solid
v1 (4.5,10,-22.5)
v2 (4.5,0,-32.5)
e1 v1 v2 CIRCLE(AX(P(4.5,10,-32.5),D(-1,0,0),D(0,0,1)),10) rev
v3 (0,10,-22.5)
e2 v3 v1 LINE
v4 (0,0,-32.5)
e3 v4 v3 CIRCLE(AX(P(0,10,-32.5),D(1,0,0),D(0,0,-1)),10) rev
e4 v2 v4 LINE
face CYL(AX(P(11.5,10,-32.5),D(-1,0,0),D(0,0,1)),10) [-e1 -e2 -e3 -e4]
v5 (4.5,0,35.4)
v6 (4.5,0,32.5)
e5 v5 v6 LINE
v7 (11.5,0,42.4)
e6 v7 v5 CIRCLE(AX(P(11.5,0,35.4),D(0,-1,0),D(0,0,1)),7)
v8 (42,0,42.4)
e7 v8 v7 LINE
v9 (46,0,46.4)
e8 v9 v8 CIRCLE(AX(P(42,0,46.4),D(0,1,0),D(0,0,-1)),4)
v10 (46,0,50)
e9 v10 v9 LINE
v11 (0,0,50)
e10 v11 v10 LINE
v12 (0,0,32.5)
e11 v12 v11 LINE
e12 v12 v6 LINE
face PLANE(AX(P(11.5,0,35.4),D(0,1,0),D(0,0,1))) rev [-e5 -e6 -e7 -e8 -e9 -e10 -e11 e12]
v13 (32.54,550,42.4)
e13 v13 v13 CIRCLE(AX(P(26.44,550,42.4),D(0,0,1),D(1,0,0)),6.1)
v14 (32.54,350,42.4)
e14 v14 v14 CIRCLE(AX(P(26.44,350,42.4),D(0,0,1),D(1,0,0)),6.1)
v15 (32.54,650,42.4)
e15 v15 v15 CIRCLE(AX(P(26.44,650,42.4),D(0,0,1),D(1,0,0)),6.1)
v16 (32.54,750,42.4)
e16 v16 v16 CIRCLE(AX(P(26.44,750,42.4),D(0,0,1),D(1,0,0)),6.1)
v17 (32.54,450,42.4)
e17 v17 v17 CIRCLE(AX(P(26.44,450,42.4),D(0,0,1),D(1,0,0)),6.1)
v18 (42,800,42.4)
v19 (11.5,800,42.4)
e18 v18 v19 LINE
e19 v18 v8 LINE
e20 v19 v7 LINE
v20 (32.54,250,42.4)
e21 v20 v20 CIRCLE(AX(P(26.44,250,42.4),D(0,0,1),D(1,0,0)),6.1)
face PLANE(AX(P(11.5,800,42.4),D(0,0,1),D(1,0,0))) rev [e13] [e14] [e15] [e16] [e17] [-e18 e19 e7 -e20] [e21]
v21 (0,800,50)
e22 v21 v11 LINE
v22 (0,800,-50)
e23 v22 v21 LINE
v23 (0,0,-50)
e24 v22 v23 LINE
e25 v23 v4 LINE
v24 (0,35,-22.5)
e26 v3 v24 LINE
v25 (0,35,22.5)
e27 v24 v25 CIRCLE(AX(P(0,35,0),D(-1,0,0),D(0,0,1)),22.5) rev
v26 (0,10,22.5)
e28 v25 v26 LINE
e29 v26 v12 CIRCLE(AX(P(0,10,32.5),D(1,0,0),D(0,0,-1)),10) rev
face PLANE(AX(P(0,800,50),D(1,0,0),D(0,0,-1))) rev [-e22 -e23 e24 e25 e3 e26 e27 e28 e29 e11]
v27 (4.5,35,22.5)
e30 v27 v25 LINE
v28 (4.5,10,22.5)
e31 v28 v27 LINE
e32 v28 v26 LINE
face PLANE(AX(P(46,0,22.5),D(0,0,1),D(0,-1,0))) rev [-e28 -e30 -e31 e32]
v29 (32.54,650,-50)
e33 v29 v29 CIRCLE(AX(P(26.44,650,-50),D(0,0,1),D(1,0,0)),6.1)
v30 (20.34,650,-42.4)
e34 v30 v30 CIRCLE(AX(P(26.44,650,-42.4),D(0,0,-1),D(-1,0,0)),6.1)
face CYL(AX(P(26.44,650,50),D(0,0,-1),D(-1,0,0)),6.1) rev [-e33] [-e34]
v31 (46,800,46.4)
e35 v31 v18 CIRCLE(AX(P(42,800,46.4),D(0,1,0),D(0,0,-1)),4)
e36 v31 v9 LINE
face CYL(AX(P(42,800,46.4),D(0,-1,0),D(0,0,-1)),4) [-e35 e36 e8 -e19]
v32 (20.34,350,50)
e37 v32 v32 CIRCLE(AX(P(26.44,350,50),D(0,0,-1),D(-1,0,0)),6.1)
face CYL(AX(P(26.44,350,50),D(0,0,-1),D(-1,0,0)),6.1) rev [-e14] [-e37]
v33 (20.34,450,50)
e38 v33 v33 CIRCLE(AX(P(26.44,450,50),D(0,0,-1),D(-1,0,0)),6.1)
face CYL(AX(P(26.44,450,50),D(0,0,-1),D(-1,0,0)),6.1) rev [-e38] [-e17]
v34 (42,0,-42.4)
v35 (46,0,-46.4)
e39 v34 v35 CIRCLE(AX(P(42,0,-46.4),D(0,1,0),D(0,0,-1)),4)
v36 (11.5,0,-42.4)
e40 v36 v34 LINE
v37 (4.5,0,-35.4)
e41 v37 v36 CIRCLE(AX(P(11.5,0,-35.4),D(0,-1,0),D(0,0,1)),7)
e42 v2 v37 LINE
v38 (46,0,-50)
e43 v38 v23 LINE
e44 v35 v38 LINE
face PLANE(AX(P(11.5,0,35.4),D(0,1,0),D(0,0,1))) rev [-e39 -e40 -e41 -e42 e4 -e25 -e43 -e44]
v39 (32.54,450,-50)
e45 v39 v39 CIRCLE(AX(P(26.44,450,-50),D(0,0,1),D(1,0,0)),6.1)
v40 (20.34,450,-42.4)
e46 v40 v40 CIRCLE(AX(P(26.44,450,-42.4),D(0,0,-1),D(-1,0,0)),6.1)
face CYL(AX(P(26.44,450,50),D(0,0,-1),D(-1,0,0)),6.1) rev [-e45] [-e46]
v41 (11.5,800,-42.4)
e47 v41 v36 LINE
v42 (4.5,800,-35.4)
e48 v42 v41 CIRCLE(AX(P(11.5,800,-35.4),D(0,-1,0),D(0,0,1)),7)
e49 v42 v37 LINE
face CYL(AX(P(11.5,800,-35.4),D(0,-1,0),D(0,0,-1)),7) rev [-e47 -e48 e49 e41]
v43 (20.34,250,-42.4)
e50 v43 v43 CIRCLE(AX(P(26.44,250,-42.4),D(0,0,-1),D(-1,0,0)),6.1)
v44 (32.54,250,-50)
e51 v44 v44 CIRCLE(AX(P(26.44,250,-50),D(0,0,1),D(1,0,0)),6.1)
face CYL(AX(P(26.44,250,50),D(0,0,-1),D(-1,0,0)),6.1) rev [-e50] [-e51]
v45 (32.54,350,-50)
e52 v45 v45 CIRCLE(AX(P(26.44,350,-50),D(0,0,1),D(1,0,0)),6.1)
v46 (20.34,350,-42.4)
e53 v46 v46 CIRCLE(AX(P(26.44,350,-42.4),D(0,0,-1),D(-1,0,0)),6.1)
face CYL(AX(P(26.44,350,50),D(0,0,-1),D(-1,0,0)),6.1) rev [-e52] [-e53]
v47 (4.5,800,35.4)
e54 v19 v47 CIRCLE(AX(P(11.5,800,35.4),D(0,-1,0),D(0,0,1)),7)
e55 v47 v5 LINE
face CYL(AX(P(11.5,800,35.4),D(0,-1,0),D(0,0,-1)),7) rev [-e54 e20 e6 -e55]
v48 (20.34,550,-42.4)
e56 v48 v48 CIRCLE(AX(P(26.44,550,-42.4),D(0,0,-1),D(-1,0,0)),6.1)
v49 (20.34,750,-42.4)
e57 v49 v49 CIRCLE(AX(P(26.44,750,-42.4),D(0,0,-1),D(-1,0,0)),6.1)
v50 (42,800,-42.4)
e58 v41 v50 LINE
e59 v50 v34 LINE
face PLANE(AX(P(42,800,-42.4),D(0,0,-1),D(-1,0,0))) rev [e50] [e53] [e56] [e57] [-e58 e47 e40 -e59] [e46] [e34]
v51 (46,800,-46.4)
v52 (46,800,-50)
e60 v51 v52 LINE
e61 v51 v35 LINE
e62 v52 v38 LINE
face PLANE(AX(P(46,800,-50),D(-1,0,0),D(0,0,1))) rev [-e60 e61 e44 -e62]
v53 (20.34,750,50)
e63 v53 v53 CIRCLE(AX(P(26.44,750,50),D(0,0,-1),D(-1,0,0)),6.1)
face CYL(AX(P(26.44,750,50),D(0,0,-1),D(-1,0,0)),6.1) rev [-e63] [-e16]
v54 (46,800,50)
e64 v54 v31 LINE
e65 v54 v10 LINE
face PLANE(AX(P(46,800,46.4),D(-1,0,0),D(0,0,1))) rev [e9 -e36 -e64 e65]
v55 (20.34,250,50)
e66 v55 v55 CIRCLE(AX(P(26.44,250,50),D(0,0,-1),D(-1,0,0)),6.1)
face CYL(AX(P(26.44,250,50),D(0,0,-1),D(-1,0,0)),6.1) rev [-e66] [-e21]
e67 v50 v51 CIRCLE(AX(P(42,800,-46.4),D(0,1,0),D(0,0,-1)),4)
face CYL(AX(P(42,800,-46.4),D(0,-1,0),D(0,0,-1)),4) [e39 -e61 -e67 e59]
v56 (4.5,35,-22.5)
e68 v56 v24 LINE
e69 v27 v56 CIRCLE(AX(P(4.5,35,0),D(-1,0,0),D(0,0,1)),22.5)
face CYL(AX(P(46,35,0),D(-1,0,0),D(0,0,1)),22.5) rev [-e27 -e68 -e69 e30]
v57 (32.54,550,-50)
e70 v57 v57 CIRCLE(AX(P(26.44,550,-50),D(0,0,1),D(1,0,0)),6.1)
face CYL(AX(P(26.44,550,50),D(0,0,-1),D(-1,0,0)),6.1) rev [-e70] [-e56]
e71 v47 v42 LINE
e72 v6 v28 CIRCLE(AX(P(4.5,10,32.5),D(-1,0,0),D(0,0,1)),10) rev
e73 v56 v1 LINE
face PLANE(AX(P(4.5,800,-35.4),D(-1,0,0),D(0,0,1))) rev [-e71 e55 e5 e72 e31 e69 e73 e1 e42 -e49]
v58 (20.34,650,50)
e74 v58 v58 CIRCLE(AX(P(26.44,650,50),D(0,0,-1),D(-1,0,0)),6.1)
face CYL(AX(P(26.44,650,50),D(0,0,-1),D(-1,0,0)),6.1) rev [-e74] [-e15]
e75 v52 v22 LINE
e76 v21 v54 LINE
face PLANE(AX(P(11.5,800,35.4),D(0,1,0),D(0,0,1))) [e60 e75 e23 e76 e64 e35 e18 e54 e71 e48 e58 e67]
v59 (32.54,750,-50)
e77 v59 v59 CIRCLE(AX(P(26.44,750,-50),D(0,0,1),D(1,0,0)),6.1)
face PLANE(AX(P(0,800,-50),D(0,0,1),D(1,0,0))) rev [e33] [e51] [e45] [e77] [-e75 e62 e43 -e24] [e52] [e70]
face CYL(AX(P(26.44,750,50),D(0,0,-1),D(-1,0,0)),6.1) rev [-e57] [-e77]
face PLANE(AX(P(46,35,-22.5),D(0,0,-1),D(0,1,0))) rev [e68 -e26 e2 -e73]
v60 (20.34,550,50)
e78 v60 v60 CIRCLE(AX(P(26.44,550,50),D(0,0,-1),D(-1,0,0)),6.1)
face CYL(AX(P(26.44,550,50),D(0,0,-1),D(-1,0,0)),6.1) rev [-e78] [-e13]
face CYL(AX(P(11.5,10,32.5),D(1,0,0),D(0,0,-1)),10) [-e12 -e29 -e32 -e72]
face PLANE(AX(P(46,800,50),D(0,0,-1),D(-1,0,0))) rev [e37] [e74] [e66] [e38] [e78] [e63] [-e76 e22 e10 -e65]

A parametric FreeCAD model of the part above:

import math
import FreeCAD as App
import Part
import Sketcher
Q = App.Units.Quantity


def edges_at(feature, points):
    """Names of the edges that pass closest to the given points."""
    edges = feature.Shape.Edges
    near = lambda p: min(range(len(edges)), key=lambda i: edges[i].distToShape(Part.Vertex(*p))[0])
    return sorted({f"Edge{near(p) + 1}" for p in points})

doc = App.newDocument("Part")
body = doc.addObject("PartDesign::Body", "Body")

# Sketch on XZ plane
sketch1 = body.newObject("Sketcher::SketchObject", "Sketch")
sketch1.AttachmentSupport = (doc.getObject("XZ_Plane"), [""])
sketch1.MapMode = "FlatFace"
sketch1.addGeometry([
    Part.LineSegment(App.Vector(0, -50, 0), App.Vector(0, 50, 0)),  # 0
    Part.LineSegment(App.Vector(0, 50, 0), App.Vector(46, 50, 0)),  # 1
    Part.LineSegment(App.Vector(46, 50, 0), App.Vector(46, 46.4, 0)),  # 2
    Part.ArcOfCircle(Part.Circle(App.Vector(42, 46.4, 0), App.Vector(0, 0, 1), 4), math.radians(-90), math.radians(0)),  # 3
    Part.LineSegment(App.Vector(42, 42.4, 0), App.Vector(11.5, 42.4, 0)),  # 4
    Part.ArcOfCircle(Part.Circle(App.Vector(11.5, 35.4, 0), App.Vector(0, 0, 1), 7), math.radians(90), math.radians(180)),  # 5
    Part.LineSegment(App.Vector(4.5, 35.4, 0), App.Vector(4.5, -35.4, 0)),  # 6
    Part.ArcOfCircle(Part.Circle(App.Vector(11.5, -35.4, 0), App.Vector(0, 0, 1), 7), math.radians(-180), math.radians(-90)),  # 7
    Part.LineSegment(App.Vector(11.5, -42.4, 0), App.Vector(42, -42.4, 0)),  # 8
    Part.ArcOfCircle(Part.Circle(App.Vector(42, -46.4, 0), App.Vector(0, 0, 1), 4), math.radians(0), math.radians(90)),  # 9
    Part.LineSegment(App.Vector(46, -46.4, 0), App.Vector(46, -50, 0)),  # 10
    Part.LineSegment(App.Vector(46, -50, 0), App.Vector(0, -50, 0)),  # 11
], False)
sketch1.addConstraint([
    Sketcher.Constraint("Coincident", 0, 2, 1, 1),
    Sketcher.Constraint("Coincident", 1, 2, 2, 1),
    Sketcher.Constraint("Tangent", 2, 2, 3, 2),
    Sketcher.Constraint("Tangent", 3, 1, 4, 1),
    Sketcher.Constraint("Tangent", 4, 2, 5, 1),
    Sketcher.Constraint("Tangent", 5, 2, 6, 1),
    Sketcher.Constraint("Tangent", 6, 2, 7, 1),
    Sketcher.Constraint("Tangent", 7, 2, 8, 1),
    Sketcher.Constraint("Tangent", 8, 2, 9, 2),
    Sketcher.Constraint("Tangent", 9, 1, 10, 1),
    Sketcher.Constraint("Coincident", 10, 2, 11, 1),
    Sketcher.Constraint("Coincident", 11, 2, 0, 1),
    Sketcher.Constraint("Vertical", 0),
    Sketcher.Constraint("Horizontal", 1),
    Sketcher.Constraint("Vertical", 2),
    Sketcher.Constraint("Horizontal", 4),
    Sketcher.Constraint("Vertical", 6),
    Sketcher.Constraint("Horizontal", 8),
    Sketcher.Constraint("Vertical", 10),
    Sketcher.Constraint("Horizontal", 11),
    Sketcher.Constraint("Equal", 5, 7),
    Sketcher.Constraint("Equal", 3, 9),
    Sketcher.Constraint("Symmetric", 0, 2, 11, 2, -1, 1),
    Sketcher.Constraint("Symmetric", 3, 3, 9, 3, -1),
    Sketcher.Constraint("Radius", 3, Q("4 mm")),
    Sketcher.Constraint("Radius", 5, Q("7 mm")),
    Sketcher.Constraint("DistanceX", 1, 1, 1, 2, Q("46 mm")),
    Sketcher.Constraint("DistanceY", 0, 1, 0, 2, Q("100 mm")),
    Sketcher.Constraint("DistanceX", 4, 2, 4, 1, Q("30.5 mm")),
    Sketcher.Constraint("DistanceY", 2, 2, 2, 1, Q("3.6 mm")),
])
pad1 = body.newObject("PartDesign::Pad", "Pad")
pad1.Profile = sketch1
pad1.Length = 800
pad1.Reversed = True

# Sketch on YZ plane
sketch2 = body.newObject("Sketcher::SketchObject", "Sketch001")
sketch2.AttachmentSupport = (doc.getObject("YZ_Plane"), [""])
sketch2.MapMode = "FlatFace"
sketch2.addGeometry([
    Part.LineSegment(App.Vector(35, -22.5, 0), App.Vector(0, -22.5, 0)),
    Part.LineSegment(App.Vector(0, -22.5, 0), App.Vector(0, 22.5, 0)),
    Part.LineSegment(App.Vector(0, 22.5, 0), App.Vector(35, 22.5, 0)),
    Part.ArcOfCircle(Part.Circle(App.Vector(35, 0, 0), App.Vector(0, 0, 1), 22.5), math.radians(-90), math.radians(90)),
], False)
sketch2.addConstraint([
    Sketcher.Constraint("Coincident", 0, 2, 1, 1),
    Sketcher.Constraint("Coincident", 1, 2, 2, 1),
    Sketcher.Constraint("Tangent", 2, 2, 3, 2),
    Sketcher.Constraint("Tangent", 3, 1, 0, 1),
    Sketcher.Constraint("Horizontal", 0),
    Sketcher.Constraint("Vertical", 1),
    Sketcher.Constraint("Horizontal", 2),
    Sketcher.Constraint("Symmetric", 0, 2, 1, 2, -1, 1),
    Sketcher.Constraint("Radius", 3, Q("22.5 mm")),
    Sketcher.Constraint("DistanceX", 0, 2, 0, 1, Q("35 mm")),
])
pocket1 = body.newObject("PartDesign::Pocket", "Pocket")
pocket1.Profile = sketch2
pocket1.Type = "ThroughAll"
pocket1.Midplane = True
doc.recompute()

fillet = body.newObject("PartDesign::Fillet", "Fillet")
fillet.Base = (pocket1, edges_at(pocket1, [(2.25, 0, -22.5), (2.25, 0, 22.5)]))
fillet.Radius = 10

# Sketch on XY plane
sketch3 = body.newObject("Sketcher::SketchObject", "Sketch002")
sketch3.AttachmentSupport = (doc.getObject("XY_Plane"), [""])
sketch3.MapMode = "FlatFace"
sketch3.AttachmentOffset = App.Placement(App.Vector(0, 0, -50), App.Rotation())
sketch3.addGeometry([
    Part.Circle(App.Vector(26.44, 750, 0), App.Vector(0, 0, 1), 6.1),  # 0
    Part.Circle(App.Vector(26.44, 650, 0), App.Vector(0, 0, 1), 6.1),  # 1
    Part.Circle(App.Vector(26.44, 550, 0), App.Vector(0, 0, 1), 6.1),  # 2
    Part.Circle(App.Vector(26.44, 450, 0), App.Vector(0, 0, 1), 6.1),  # 3
    Part.Circle(App.Vector(26.44, 350, 0), App.Vector(0, 0, 1), 6.1),  # 4
    Part.Circle(App.Vector(26.44, 250, 0), App.Vector(0, 0, 1), 6.1),  # 5
], False)
sketch3.addConstraint([
    Sketcher.Constraint("Equal", 0, 1),
    Sketcher.Constraint("Equal", 1, 2),
    Sketcher.Constraint("Equal", 2, 3),
    Sketcher.Constraint("Equal", 3, 4),
    Sketcher.Constraint("Equal", 4, 5),
    Sketcher.Constraint("Vertical", 0, 3, 1, 3),
    Sketcher.Constraint("Vertical", 1, 3, 2, 3),
    Sketcher.Constraint("Vertical", 2, 3, 3, 3),
    Sketcher.Constraint("Vertical", 3, 3, 4, 3),
    Sketcher.Constraint("Vertical", 4, 3, 5, 3),
    Sketcher.Constraint("Diameter", 0, Q("12.2 mm")),
    Sketcher.Constraint("DistanceY", -1, 1, 0, 3, Q("750 mm")),
    Sketcher.Constraint("DistanceY", -1, 1, 1, 3, Q("650 mm")),
    Sketcher.Constraint("DistanceY", -1, 1, 2, 3, Q("550 mm")),
    Sketcher.Constraint("DistanceY", -1, 1, 3, 3, Q("450 mm")),
    Sketcher.Constraint("DistanceY", -1, 1, 4, 3, Q("350 mm")),
    Sketcher.Constraint("DistanceY", -1, 1, 5, 3, Q("250 mm")),
    Sketcher.Constraint("DistanceX", -1, 1, 0, 3, Q("26.44 mm")),
])
pocket2 = body.newObject("PartDesign::Pocket", "Pocket001")
pocket2.Profile = sketch3
pocket2.Type = "ThroughAll"
pocket2.Midplane = True

doc.recompute()
